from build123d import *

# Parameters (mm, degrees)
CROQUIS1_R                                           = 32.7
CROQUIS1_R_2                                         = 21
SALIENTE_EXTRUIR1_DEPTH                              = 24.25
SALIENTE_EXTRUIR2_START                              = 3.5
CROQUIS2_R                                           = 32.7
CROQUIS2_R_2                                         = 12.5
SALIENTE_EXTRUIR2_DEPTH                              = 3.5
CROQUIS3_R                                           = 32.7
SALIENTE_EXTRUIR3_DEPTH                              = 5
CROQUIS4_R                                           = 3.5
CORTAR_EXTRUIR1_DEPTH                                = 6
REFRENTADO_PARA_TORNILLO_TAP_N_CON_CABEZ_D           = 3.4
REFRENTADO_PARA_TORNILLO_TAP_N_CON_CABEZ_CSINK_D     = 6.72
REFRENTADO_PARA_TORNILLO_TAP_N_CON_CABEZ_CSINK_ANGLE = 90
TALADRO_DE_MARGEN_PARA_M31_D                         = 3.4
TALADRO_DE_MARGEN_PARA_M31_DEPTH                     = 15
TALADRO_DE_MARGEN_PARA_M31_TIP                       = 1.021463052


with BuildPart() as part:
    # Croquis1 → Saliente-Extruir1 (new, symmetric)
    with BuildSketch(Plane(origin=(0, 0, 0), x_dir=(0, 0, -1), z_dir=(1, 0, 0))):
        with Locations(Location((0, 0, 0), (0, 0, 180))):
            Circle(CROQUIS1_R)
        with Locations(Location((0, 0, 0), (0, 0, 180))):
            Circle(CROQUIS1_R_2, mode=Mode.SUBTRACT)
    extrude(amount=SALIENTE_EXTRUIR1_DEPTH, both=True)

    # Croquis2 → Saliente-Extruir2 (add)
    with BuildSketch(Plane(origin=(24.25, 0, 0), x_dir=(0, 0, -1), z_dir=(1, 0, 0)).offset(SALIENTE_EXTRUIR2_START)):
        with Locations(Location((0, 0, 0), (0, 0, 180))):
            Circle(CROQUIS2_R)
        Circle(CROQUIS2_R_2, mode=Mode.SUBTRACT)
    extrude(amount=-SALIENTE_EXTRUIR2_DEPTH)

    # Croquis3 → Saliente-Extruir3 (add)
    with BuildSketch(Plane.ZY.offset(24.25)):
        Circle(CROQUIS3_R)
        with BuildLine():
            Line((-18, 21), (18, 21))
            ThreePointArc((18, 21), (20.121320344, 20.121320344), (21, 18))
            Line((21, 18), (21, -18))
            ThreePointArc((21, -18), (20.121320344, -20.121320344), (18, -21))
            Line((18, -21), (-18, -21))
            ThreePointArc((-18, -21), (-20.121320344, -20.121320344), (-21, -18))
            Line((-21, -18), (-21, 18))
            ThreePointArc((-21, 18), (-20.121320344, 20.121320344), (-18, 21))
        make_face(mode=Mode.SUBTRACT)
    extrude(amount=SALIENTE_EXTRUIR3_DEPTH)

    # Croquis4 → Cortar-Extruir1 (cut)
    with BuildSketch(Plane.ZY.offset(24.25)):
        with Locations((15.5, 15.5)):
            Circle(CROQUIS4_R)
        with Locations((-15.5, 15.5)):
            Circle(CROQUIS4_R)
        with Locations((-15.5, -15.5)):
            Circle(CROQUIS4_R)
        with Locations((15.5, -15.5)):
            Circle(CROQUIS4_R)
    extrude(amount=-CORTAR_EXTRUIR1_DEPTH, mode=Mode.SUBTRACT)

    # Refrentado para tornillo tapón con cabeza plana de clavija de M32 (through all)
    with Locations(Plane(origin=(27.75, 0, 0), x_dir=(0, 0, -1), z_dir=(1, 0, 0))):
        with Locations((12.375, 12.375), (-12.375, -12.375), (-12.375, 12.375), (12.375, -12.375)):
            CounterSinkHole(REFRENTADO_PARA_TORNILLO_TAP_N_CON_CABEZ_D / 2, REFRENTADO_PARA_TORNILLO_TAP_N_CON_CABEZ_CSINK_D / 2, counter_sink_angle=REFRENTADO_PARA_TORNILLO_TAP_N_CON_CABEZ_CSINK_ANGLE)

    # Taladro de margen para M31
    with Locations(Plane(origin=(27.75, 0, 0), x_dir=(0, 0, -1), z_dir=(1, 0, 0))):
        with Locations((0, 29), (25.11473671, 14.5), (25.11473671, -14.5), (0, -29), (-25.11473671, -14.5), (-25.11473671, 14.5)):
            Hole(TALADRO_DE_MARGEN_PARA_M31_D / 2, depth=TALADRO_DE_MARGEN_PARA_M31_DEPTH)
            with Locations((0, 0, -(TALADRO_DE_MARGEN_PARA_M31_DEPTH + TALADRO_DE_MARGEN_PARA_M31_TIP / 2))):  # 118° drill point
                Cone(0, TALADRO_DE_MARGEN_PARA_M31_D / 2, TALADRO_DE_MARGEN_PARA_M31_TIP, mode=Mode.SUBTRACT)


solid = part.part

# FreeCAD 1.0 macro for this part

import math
import FreeCAD as App
import Part
import Sketcher
from FreeCAD import Vector

doc = App.newDocument("Part")
params = doc.addObject("Spreadsheet::Sheet", "Params")
for row, (alias, value) in enumerate([
    ("sketch1_diameter", "42 mm"),
    ("sketch1_diameter2", "65.4 mm"),
    ("pad1_length", "48.5 mm"),
    ("sketch2_diameter", "25 mm"),
    ("sketch2_diameter2", "65.4 mm"),
    ("pad2_length", "3.5 mm"),
    ("sketch3_radius", "3 mm"),
    ("sketch3_diameter", "65.4 mm"),
    ("sketch3_width", "36 mm"),
    ("pad3_length", "5 mm"),
    ("sketch4_diameter", "7 mm"),
    ("pocket1_length", "6 mm"),
    ("sketch5_diameter", "3.4 mm"),
    ("hole_diameter", "3.4 mm"),
    ("hole_csink_diameter", "6.72 mm"),
    ("sketch6_diameter", "3.4 mm"),
    ("hole2_diameter", "3.4 mm"),
    ("hole2_depth", "15 mm"),
], start=1):
    params.set(f"A{row}", alias)
    params.set(f"B{row}", "=" + value)
    params.setAlias(f"B{row}", alias)

body = doc.addObject("PartDesign::Body", "Body")

# Sketch on YZ plane
sketch1 = body.newObject("Sketcher::SketchObject", "Sketch")
sketch1.AttachmentSupport = (doc.getObject("YZ_Plane"), [""])
sketch1.MapMode = "FlatFace"
sketch1.addGeometry([
    Part.Circle(Vector(0, 0, 0), Vector(0, 0, 1), 32.7),
    Part.Circle(Vector(0, 0, 0), Vector(0, 0, 1), 21),
], False)
sketch1.addConstraint([
    Sketcher.Constraint("Coincident", 0, 3, -1, 1),
    Sketcher.Constraint("Coincident", 1, 3, -1, 1),
    Sketcher.Constraint("Diameter", 1, 42.0),
    Sketcher.Constraint("Diameter", 0, 65.4),
])
sketch1.setExpression("Constraints[2]", "Params.sketch1_diameter")
sketch1.setExpression("Constraints[3]", "Params.sketch1_diameter2")
pad1 = body.newObject("PartDesign::Pad", "Pad")
pad1.Profile = sketch1
pad1.setExpression("Length", "Params.pad1_length")
pad1.Midplane = True

# Sketch on YZ plane
sketch2 = body.newObject("Sketcher::SketchObject", "Sketch001")
sketch2.AttachmentSupport = (doc.getObject("YZ_Plane"), [""])
sketch2.MapMode = "FlatFace"
sketch2.AttachmentOffset = App.Placement(Vector(0, 0, 27.75), App.Rotation())
sketch2.addGeometry([
    Part.Circle(Vector(0, 0, 0), Vector(0, 0, 1), 32.7),
    Part.Circle(Vector(0, 0, 0), Vector(0, 0, 1), 12.5),
], False)
sketch2.addConstraint([
    Sketcher.Constraint("Coincident", 0, 3, -1, 1),
    Sketcher.Constraint("Coincident", 1, 3, -1, 1),
    Sketcher.Constraint("Diameter", 1, 25.0),
    Sketcher.Constraint("Diameter", 0, 65.4),
])
sketch2.setExpression("Constraints[2]", "Params.sketch2_diameter")
sketch2.setExpression("Constraints[3]", "Params.sketch2_diameter2")
pad2 = body.newObject("PartDesign::Pad", "Pad001")
pad2.Profile = sketch2
pad2.setExpression("Length", "Params.pad2_length")
pad2.Reversed = True

# Sketch on YZ plane
sketch3 = body.newObject("Sketcher::SketchObject", "Sketch002")
sketch3.AttachmentSupport = (doc.getObject("YZ_Plane"), [""])
sketch3.MapMode = "FlatFace"
sketch3.AttachmentOffset = App.Placement(Vector(0, 0, -24.25), App.Rotation())
sketch3.addGeometry([
    Part.Circle(Vector(0, 0, 0), Vector(0, 0, 1), 32.7),  # 0
    Part.ArcOfCircle(Part.Circle(Vector(18, -18, 0), Vector(0, 0, 1), 3), math.radians(-90), math.radians(0)),  # 1
    Part.LineSegment(Vector(21, -18, 0), Vector(21, 18, 0)),  # 2
    Part.ArcOfCircle(Part.Circle(Vector(18, 18, 0), Vector(0, 0, 1), 3), math.radians(0), math.radians(90)),  # 3
    Part.LineSegment(Vector(18, 21, 0), Vector(-18, 21, 0)),  # 4
    Part.ArcOfCircle(Part.Circle(Vector(-18, 18, 0), Vector(0, 0, 1), 3), math.radians(90), math.radians(180)),  # 5
    Part.LineSegment(Vector(-21, 18, 0), Vector(-21, -18, 0)),  # 6
    Part.ArcOfCircle(Part.Circle(Vector(-18, -18, 0), Vector(0, 0, 1), 3), math.radians(180), math.radians(270)),  # 7
    Part.LineSegment(Vector(-18, -21, 0), Vector(18, -21, 0)),  # 8
], False)
sketch3.addConstraint([
    Sketcher.Constraint("Tangent", 1, 2, 2, 1),
    Sketcher.Constraint("Tangent", 2, 2, 3, 1),
    Sketcher.Constraint("Tangent", 3, 2, 4, 1),
    Sketcher.Constraint("Tangent", 4, 2, 5, 1),
    Sketcher.Constraint("Tangent", 5, 2, 6, 1),
    Sketcher.Constraint("Tangent", 6, 2, 7, 1),
    Sketcher.Constraint("Tangent", 7, 2, 8, 1),
    Sketcher.Constraint("Tangent", 8, 2, 1, 1),
    Sketcher.Constraint("Vertical", 2),
    Sketcher.Constraint("Horizontal", 4),
    Sketcher.Constraint("Vertical", 6),
    Sketcher.Constraint("Horizontal", 8),
    Sketcher.Constraint("Coincident", 0, 3, -1, 1),
    Sketcher.Constraint("Equal", 1, 3),
    Sketcher.Constraint("Equal", 3, 5),
    Sketcher.Constraint("Equal", 5, 7),
    Sketcher.Constraint("Symmetric", 1, 3, 5, 3, -1, 1),
    Sketcher.Constraint("Equal", 8, 2),
    Sketcher.Constraint("Radius", 1, 3.0),
    Sketcher.Constraint("Diameter", 0, 65.4),
    Sketcher.Constraint("DistanceX", 4, 2, 4, 1, 36.0),
])
sketch3.setExpression("Constraints[18]", "Params.sketch3_radius")
sketch3.setExpression("Constraints[19]", "Params.sketch3_diameter")
sketch3.setExpression("Constraints[20]", "Params.sketch3_width")
pad3 = body.newObject("PartDesign::Pad", "Pad002")
pad3.Profile = sketch3
pad3.setExpression("Length", "Params.pad3_length")
pad3.Reversed = True

# Sketch on YZ plane
sketch4 = body.newObject("Sketcher::SketchObject", "Sketch003")
sketch4.AttachmentSupport = (doc.getObject("YZ_Plane"), [""])
sketch4.MapMode = "FlatFace"
sketch4.AttachmentOffset = App.Placement(Vector(0, 0, -24.25), App.Rotation())
sketch4.addGeometry([
    Part.Circle(Vector(15.5, 15.5, 0), Vector(0, 0, 1), 3.5),
    Part.Circle(Vector(15.5, -15.5, 0), Vector(0, 0, 1), 3.5),
    Part.Circle(Vector(-15.5, -15.5, 0), Vector(0, 0, 1), 3.5),
    Part.Circle(Vector(-15.5, 15.5, 0), Vector(0, 0, 1), 3.5),
], False)
sketch4.addConstraint([
    Sketcher.Constraint("Equal", 0, 1),
    Sketcher.Constraint("Equal", 1, 2),
    Sketcher.Constraint("Equal", 2, 3),
    Sketcher.Constraint("Symmetric", 0, 3, 2, 3, -1, 1),
    Sketcher.Constraint("Symmetric", 1, 3, 3, 3, -1, 1),
    Sketcher.Constraint("Symmetric", 1, 3, 2, 3, -2),
    Sketcher.Constraint("Diameter", 0, 7.0),
    Sketcher.Constraint("DistanceY", 1, 3, 0, 3, 31.0),
    Sketcher.Constraint("DistanceX", 2, 3, 1, 3, 31.0),
])
sketch4.setExpression("Constraints[6]", "Params.sketch4_diameter")
pocket1 = body.newObject("PartDesign::Pocket", "Pocket")
pocket1.Profile = sketch4
pocket1.setExpression("Length", "Params.pocket1_length")
pocket1.Reversed = True

# Sketch on YZ plane
sketch5 = body.newObject("Sketcher::SketchObject", "Sketch004")
sketch5.AttachmentSupport = (doc.getObject("YZ_Plane"), [""])
sketch5.MapMode = "FlatFace"
sketch5.AttachmentOffset = App.Placement(Vector(0, 0, 27.75), App.Rotation())
sketch5.addGeometry([
    Part.Circle(Vector(12.375, -12.375, 0), Vector(0, 0, 1), 1.7),
    Part.Circle(Vector(-12.375, 12.375, 0), Vector(0, 0, 1), 1.7),
    Part.Circle(Vector(12.375, 12.375, 0), Vector(0, 0, 1), 1.7),
    Part.Circle(Vector(-12.375, -12.375, 0), Vector(0, 0, 1), 1.7),
], False)
sketch5.addConstraint([
    Sketcher.Constraint("Equal", 0, 1),
    Sketcher.Constraint("Equal", 1, 2),
    Sketcher.Constraint("Equal", 2, 3),
    Sketcher.Constraint("Symmetric", 0, 3, 1, 3, -1, 1),
    Sketcher.Constraint("Symmetric", 2, 3, 3, 3, -1, 1),
    Sketcher.Constraint("Symmetric", 1, 3, 2, 3, -2),
    Sketcher.Constraint("Diameter", 0, 3.4),
    Sketcher.Constraint("DistanceX", 1, 3, 0, 3, 24.75),
    Sketcher.Constraint("DistanceY", 0, 3, 1, 3, 24.75),
])
sketch5.setExpression("Constraints[6]", "Params.sketch5_diameter")
doc.recompute()
hole = body.newObject("PartDesign::Hole", "Hole")
hole.Profile = sketch5
hole.ThreadType = "None"
hole.setExpression("Diameter", "Params.hole_diameter")
hole.DepthType = "ThroughAll"
hole.HoleCutType = "Countersink"
hole.setExpression("HoleCutDiameter", "Params.hole_csink_diameter")
hole.HoleCutCountersinkAngle = 90

# Sketch on YZ plane
sketch6 = body.newObject("Sketcher::SketchObject", "Sketch005")
sketch6.AttachmentSupport = (doc.getObject("YZ_Plane"), [""])
sketch6.MapMode = "FlatFace"
sketch6.AttachmentOffset = App.Placement(Vector(0, 0, 27.75), App.Rotation())
sketch6.addGeometry([
    Part.Circle(Vector(29, 0, 0), Vector(0, 0, 1), 1.7),  # 0
    Part.Circle(Vector(14.5, -25.114737, 0), Vector(0, 0, 1), 1.7),  # 1
    Part.Circle(Vector(-14.5, -25.114737, 0), Vector(0, 0, 1), 1.7),  # 2
    Part.Circle(Vector(-29, 0, 0), Vector(0, 0, 1), 1.7),  # 3
    Part.Circle(Vector(-14.5, 25.114737, 0), Vector(0, 0, 1), 1.7),  # 4
    Part.Circle(Vector(14.5, 25.114737, 0), Vector(0, 0, 1), 1.7),  # 5
], False)
sketch6.addConstraint([
    Sketcher.Constraint("Equal", 0, 1),
    Sketcher.Constraint("Equal", 1, 2),
    Sketcher.Constraint("Equal", 2, 3),
    Sketcher.Constraint("Equal", 3, 4),
    Sketcher.Constraint("Equal", 4, 5),
    Sketcher.Constraint("Symmetric", 0, 3, 3, 3, -1, 1),
    Sketcher.Constraint("Symmetric", 1, 3, 4, 3, -1, 1),
    Sketcher.Constraint("Symmetric", 2, 3, 5, 3, -1, 1),
    Sketcher.Constraint("Symmetric", 1, 3, 2, 3, -2),
    Sketcher.Constraint("PointOnObject", 0, 3, -1),
    Sketcher.Constraint("Diameter", 0, 3.4),
    Sketcher.Constraint("DistanceX", -1, 1, 0, 3, 29.0),
    Sketcher.Constraint("DistanceX", 2, 3, 1, 3, 29.0),
    Sketcher.Constraint("DistanceY", 1, 3, -1, 1, 25.114737),
])
sketch6.setExpression("Constraints[10]", "Params.sketch6_diameter")
doc.recompute()
hole2 = body.newObject("PartDesign::Hole", "Hole001")
hole2.Profile = sketch6
hole2.ThreadType = "None"
hole2.setExpression("Diameter", "Params.hole2_diameter")
hole2.DepthType = "Dimension"
hole2.setExpression("Depth", "Params.hole2_depth")
hole2.DrillPoint = "Angled"
hole2.DrillPointAngle = 118

doc.recompute()
